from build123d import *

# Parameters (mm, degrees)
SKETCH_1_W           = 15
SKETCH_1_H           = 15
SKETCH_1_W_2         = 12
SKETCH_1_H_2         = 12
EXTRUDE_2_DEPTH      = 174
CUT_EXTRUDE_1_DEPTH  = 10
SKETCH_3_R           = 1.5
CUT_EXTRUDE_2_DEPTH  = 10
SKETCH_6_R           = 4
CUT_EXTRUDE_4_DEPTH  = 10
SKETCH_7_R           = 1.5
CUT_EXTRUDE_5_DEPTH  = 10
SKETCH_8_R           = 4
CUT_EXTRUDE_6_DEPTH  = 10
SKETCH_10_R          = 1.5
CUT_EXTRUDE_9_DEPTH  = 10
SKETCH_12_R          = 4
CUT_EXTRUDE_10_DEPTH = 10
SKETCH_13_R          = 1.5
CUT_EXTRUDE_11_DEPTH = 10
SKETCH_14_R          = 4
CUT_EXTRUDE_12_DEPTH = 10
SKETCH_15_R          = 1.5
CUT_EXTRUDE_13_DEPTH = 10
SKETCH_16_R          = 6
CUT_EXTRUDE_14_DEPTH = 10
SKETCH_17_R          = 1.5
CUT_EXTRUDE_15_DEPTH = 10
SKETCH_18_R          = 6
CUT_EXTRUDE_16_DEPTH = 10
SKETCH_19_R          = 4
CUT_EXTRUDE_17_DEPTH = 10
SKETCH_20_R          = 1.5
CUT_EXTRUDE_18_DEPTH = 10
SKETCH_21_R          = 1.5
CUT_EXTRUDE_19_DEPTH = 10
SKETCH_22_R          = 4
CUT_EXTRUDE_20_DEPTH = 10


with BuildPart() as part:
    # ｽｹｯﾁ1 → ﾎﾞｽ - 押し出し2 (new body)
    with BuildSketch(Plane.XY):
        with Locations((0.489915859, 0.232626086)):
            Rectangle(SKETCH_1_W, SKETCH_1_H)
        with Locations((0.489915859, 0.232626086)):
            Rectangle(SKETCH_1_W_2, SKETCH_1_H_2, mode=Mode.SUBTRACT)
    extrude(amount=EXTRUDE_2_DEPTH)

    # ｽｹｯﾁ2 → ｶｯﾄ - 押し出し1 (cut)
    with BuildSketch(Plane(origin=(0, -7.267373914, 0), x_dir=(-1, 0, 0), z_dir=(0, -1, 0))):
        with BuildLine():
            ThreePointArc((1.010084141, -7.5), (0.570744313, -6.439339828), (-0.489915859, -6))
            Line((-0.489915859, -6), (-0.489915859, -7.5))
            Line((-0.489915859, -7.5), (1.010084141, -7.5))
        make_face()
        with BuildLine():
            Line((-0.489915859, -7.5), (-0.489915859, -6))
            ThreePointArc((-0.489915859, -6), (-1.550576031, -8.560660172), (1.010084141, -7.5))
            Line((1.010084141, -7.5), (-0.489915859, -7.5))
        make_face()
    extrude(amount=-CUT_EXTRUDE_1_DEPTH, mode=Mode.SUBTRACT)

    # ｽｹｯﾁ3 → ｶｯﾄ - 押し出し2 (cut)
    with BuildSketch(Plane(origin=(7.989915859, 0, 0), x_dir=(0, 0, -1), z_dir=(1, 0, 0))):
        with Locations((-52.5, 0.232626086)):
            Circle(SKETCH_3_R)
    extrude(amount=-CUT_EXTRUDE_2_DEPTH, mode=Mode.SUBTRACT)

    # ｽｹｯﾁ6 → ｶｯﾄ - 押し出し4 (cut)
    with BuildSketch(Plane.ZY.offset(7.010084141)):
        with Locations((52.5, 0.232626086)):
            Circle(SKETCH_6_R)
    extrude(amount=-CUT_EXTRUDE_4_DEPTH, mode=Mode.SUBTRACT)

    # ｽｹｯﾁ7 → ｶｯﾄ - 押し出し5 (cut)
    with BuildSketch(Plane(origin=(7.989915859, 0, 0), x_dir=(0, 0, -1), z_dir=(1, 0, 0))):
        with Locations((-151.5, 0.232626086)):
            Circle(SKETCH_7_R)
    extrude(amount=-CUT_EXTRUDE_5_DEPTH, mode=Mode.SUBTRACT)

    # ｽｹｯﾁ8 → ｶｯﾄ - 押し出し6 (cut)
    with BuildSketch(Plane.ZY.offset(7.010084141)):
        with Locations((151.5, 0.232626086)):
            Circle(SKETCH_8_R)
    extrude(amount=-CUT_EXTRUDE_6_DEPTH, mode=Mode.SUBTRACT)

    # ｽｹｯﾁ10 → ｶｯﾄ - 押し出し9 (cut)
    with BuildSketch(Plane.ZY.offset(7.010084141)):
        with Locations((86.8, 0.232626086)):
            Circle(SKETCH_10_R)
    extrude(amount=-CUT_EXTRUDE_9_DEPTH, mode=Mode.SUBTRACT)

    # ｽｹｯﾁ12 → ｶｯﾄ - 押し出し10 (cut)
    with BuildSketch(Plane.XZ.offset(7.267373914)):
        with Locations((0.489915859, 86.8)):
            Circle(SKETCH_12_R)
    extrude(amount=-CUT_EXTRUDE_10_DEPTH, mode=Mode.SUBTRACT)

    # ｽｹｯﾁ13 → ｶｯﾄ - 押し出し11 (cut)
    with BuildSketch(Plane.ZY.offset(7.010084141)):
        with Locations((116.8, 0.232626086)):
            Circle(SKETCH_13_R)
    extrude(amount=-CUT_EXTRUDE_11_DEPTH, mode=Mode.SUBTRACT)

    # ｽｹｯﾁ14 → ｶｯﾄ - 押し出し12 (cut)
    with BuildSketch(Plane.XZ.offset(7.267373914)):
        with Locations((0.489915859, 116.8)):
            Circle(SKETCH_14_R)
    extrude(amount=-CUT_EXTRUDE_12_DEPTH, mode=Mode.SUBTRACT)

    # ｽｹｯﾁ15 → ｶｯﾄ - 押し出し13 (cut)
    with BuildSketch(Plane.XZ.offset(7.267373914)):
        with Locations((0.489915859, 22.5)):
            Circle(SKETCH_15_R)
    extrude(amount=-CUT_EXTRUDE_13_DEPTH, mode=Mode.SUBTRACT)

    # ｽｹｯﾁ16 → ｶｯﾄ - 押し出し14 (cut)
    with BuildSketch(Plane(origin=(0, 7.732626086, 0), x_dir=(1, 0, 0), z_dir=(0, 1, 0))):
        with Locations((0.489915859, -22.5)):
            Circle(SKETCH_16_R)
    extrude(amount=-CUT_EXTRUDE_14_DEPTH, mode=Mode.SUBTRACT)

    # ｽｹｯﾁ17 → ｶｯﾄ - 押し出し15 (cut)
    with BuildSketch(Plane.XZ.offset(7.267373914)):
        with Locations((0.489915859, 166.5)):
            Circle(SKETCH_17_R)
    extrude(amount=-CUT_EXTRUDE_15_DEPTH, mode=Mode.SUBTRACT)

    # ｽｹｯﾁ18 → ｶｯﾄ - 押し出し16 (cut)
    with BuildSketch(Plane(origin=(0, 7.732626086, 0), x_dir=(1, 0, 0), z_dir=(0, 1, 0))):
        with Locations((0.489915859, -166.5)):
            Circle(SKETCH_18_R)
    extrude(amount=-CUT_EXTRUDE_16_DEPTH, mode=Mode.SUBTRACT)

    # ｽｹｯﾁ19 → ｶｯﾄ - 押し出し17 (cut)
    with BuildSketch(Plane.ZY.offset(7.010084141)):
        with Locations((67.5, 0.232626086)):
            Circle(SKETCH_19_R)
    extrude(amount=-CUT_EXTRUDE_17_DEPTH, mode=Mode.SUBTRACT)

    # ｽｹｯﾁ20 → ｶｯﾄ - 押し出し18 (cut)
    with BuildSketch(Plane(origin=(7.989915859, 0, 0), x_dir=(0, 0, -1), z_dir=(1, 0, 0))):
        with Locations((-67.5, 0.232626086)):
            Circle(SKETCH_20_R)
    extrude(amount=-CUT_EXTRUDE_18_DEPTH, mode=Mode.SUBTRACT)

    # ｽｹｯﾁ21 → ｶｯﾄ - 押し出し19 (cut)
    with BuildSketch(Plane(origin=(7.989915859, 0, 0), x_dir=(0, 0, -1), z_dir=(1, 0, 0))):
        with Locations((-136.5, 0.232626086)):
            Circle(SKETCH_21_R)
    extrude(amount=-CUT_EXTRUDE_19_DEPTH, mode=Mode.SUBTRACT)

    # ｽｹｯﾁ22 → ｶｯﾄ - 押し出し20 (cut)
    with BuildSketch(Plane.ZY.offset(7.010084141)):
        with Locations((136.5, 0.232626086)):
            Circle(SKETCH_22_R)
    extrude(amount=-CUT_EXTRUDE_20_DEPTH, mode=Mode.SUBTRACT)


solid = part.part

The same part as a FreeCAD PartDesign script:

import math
import FreeCAD as App
import Part
import Sketcher
from FreeCAD import Vector


def add_polygon(sketch, points):
    """Adds a closed chain of lines whose ends are joined by coincident constraints."""
    first, n = sketch.GeometryCount, len(points)
    for a, b in zip(points, points[1:] + points[:1]):
        sketch.addGeometry(Part.LineSegment(App.Vector(*a, 0), App.Vector(*b, 0)), False)
    for i in range(n):
        sketch.addConstraint(Sketcher.Constraint("Coincident", first + i, 2, first + (i + 1) % n, 1))

doc = App.newDocument("Part")
body = doc.addObject("PartDesign::Body", "Body")

sketch1 = doc.addObject("Sketcher::SketchObject", "Sketch")
body.addObject(sketch1)
sketch1.AttachmentSupport = (doc.XY_Plane, [""])
sketch1.MapMode = "FlatFace"
add_polygon(sketch1, [(-7.010084, 7.732626), (-7.010084, -7.267374), (7.989916, -7.267374), (7.989916, 7.732626)])
add_polygon(sketch1, [(6.489916, -5.767374), (-5.510084, -5.767374), (-5.510084, 6.232626), (6.489916, 6.232626)])
sketch1.addConstraint([
    Sketcher.Constraint("Vertical", 0),
    Sketcher.Constraint("Horizontal", 1),
    Sketcher.Constraint("Vertical", 2),
    Sketcher.Constraint("Horizontal", 3),
    Sketcher.Constraint("Horizontal", 4),
    Sketcher.Constraint("Vertical", 5),
    Sketcher.Constraint("Horizontal", 6),
    Sketcher.Constraint("Vertical", 7),
    Sketcher.Constraint("Equal", 3, 0),
    Sketcher.Constraint("Equal", 6, 5),
    Sketcher.Constraint("DistanceX", 1, 1, 1, 2, 15.0),
    Sketcher.Constraint("DistanceX", 4, 2, 4, 1, 12.0),
    Sketcher.Constraint("DistanceX", 0, 2, 4, 2, 1.5),
    Sketcher.Constraint("DistanceY", 0, 2, 4, 2, 1.5),
    Sketcher.Constraint("DistanceX", 0, 2, -1, 1, 7.010084),
    Sketcher.Constraint("DistanceY", 0, 2, -1, 1, 7.267374),
])
pad1 = doc.addObject("PartDesign::Pad", "Pad")
body.addObject(pad1)
pad1.Profile = sketch1
pad1.Length = 174

sketch2 = doc.addObject("Sketcher::SketchObject", "Sketch001")
body.addObject(sketch2)
sketch2.AttachmentSupport = (doc.XZ_Plane, [""])
sketch2.MapMode = "FlatFace"
sketch2.AttachmentOffset = App.Placement(Vector(0, 0, 7.267374), App.Rotation())
sketch2.addGeometry([
    Part.ArcOfCircle(Part.Circle(Vector(0.489916, 7.5, 0), Vector(0, 0, 1), 1.5), math.radians(180), math.radians(270)),
    Part.ArcOfCircle(Part.Circle(Vector(0.489916, 7.5, 0), Vector(0, 0, 1), 1.5), math.radians(-90), math.radians(180)),
], False)
sketch2.addConstraint([
    Sketcher.Constraint("Tangent", 0, 1, 1, 2),
    Sketcher.Constraint("Coincident", 1, 1, 0, 2),
    Sketcher.Constraint("Horizontal", 1, 3, 0, 1),
    Sketcher.Constraint("Vertical", 0, 3, 1, 1),
    Sketcher.Constraint("Radius", 0, 1.5),
    Sketcher.Constraint("DistanceY", -1, 1, 1, 1, 6.0),
    Sketcher.Constraint("DistanceX", -1, 1, 0, 3, 0.489916),
])
pocket1 = doc.addObject("PartDesign::Pocket", "Pocket")
body.addObject(pocket1)
pocket1.Profile = sketch2
pocket1.Length = 10

sketch3 = doc.addObject("Sketcher::SketchObject", "Sketch002")
body.addObject(sketch3)
sketch3.AttachmentSupport = (doc.YZ_Plane, [""])
sketch3.MapMode = "FlatFace"
sketch3.AttachmentOffset = App.Placement(Vector(0, 0, 7.989916), App.Rotation())
sketch3.addGeometry(Part.Circle(Vector(0.232626, 52.5, 0), Vector(0, 0, 1), 1.5), False)
sketch3.addConstraint([
    Sketcher.Constraint("Diameter", 0, 3.0),
    Sketcher.Constraint("DistanceY", -1, 1, 0, 3, 52.5),
    Sketcher.Constraint("DistanceX", -1, 1, 0, 3, 0.232626),
])
pocket2 = doc.addObject("PartDesign::Pocket", "Pocket001")
body.addObject(pocket2)
pocket2.Profile = sketch3
pocket2.Length = 10

sketch4 = doc.addObject("Sketcher::SketchObject", "Sketch003")
body.addObject(sketch4)
sketch4.AttachmentSupport = (doc.YZ_Plane, [""])
sketch4.MapMode = "FlatFace"
sketch4.AttachmentOffset = App.Placement(Vector(0, 0, -7.010084), App.Rotation())
sketch4.addGeometry(Part.Circle(Vector(0.232626, 52.5, 0), Vector(0, 0, 1), 4), False)
sketch4.addConstraint([
    Sketcher.Constraint("Diameter", 0, 8.0),
    Sketcher.Constraint("DistanceY", -1, 1, 0, 3, 52.5),
    Sketcher.Constraint("DistanceX", -1, 1, 0, 3, 0.232626),
])
pocket3 = doc.addObject("PartDesign::Pocket", "Pocket002")
body.addObject(pocket3)
pocket3.Profile = sketch4
pocket3.Length = 10
pocket3.Reversed = True

sketch5 = doc.addObject("Sketcher::SketchObject", "Sketch004")
body.addObject(sketch5)
sketch5.AttachmentSupport = (doc.YZ_Plane, [""])
sketch5.MapMode = "FlatFace"
sketch5.AttachmentOffset = App.Placement(Vector(0, 0, 7.989916), App.Rotation())
sketch5.addGeometry(Part.Circle(Vector(0.232626, 151.5, 0), Vector(0, 0, 1), 1.5), False)
sketch5.addConstraint([
    Sketcher.Constraint("Diameter", 0, 3.0),
    Sketcher.Constraint("DistanceY", -1, 1, 0, 3, 151.5),
    Sketcher.Constraint("DistanceX", -1, 1, 0, 3, 0.232626),
])
pocket4 = doc.addObject("PartDesign::Pocket", "Pocket003")
body.addObject(pocket4)
pocket4.Profile = sketch5
pocket4.Length = 10

sketch6 = doc.addObject("Sketcher::SketchObject", "Sketch005")
body.addObject(sketch6)
sketch6.AttachmentSupport = (doc.YZ_Plane, [""])
sketch6.MapMode = "FlatFace"
sketch6.AttachmentOffset = App.Placement(Vector(0, 0, -7.010084), App.Rotation())
sketch6.addGeometry(Part.Circle(Vector(0.232626, 151.5, 0), Vector(0, 0, 1), 4), False)
sketch6.addConstraint([
    Sketcher.Constraint("Diameter", 0, 8.0),
    Sketcher.Constraint("DistanceY", -1, 1, 0, 3, 151.5),
    Sketcher.Constraint("DistanceX", -1, 1, 0, 3, 0.232626),
])
pocket5 = doc.addObject("PartDesign::Pocket", "Pocket004")
body.addObject(pocket5)
pocket5.Profile = sketch6
pocket5.Length = 10
pocket5.Reversed = True

sketch7 = doc.addObject("Sketcher::SketchObject", "Sketch006")
body.addObject(sketch7)
sketch7.AttachmentSupport = (doc.YZ_Plane, [""])
sketch7.MapMode = "FlatFace"
sketch7.AttachmentOffset = App.Placement(Vector(0, 0, -7.010084), App.Rotation())
sketch7.addGeometry(Part.Circle(Vector(0.232626, 86.8, 0), Vector(0, 0, 1), 1.5), False)
sketch7.addConstraint([
    Sketcher.Constraint("Diameter", 0, 3.0),
    Sketcher.Constraint("DistanceY", -1, 1, 0, 3, 86.8),
    Sketcher.Constraint("DistanceX", -1, 1, 0, 3, 0.232626),
])
pocket6 = doc.addObject("PartDesign::Pocket", "Pocket005")
body.addObject(pocket6)
pocket6.Profile = sketch7
pocket6.Length = 10
pocket6.Reversed = True

sketch8 = doc.addObject("Sketcher::SketchObject", "Sketch007")
body.addObject(sketch8)
sketch8.AttachmentSupport = (doc.XZ_Plane, [""])
sketch8.MapMode = "FlatFace"
sketch8.AttachmentOffset = App.Placement(Vector(0, 0, 7.267374), App.Rotation())
sketch8.addGeometry(Part.Circle(Vector(0.489916, 86.8, 0), Vector(0, 0, 1), 4), False)
sketch8.addConstraint([
    Sketcher.Constraint("Diameter", 0, 8.0),
    Sketcher.Constraint("DistanceY", -1, 1, 0, 3, 86.8),
    Sketcher.Constraint("DistanceX", -1, 1, 0, 3, 0.489916),
])
pocket7 = doc.addObject("PartDesign::Pocket", "Pocket006")
body.addObject(pocket7)
pocket7.Profile = sketch8
pocket7.Length = 10

sketch9 = doc.addObject("Sketcher::SketchObject", "Sketch008")
body.addObject(sketch9)
sketch9.AttachmentSupport = (doc.YZ_Plane, [""])
sketch9.MapMode = "FlatFace"
sketch9.AttachmentOffset = App.Placement(Vector(0, 0, -7.010084), App.Rotation())
sketch9.addGeometry(Part.Circle(Vector(0.232626, 116.8, 0), Vector(0, 0, 1), 1.5), False)
sketch9.addConstraint([
    Sketcher.Constraint("Diameter", 0, 3.0),
    Sketcher.Constraint("DistanceY", -1, 1, 0, 3, 116.8),
    Sketcher.Constraint("DistanceX", -1, 1, 0, 3, 0.232626),
])
pocket8 = doc.addObject("PartDesign::Pocket", "Pocket007")
body.addObject(pocket8)
pocket8.Profile = sketch9
pocket8.Length = 10
pocket8.Reversed = True

sketch10 = doc.addObject("Sketcher::SketchObject", "Sketch009")
body.addObject(sketch10)
sketch10.AttachmentSupport = (doc.XZ_Plane, [""])
sketch10.MapMode = "FlatFace"
sketch10.AttachmentOffset = App.Placement(Vector(0, 0, 7.267374), App.Rotation())
sketch10.addGeometry(Part.Circle(Vector(0.489916, 116.8, 0), Vector(0, 0, 1), 4), False)
sketch10.addConstraint([
    Sketcher.Constraint("Diameter", 0, 8.0),
    Sketcher.Constraint("DistanceY", -1, 1, 0, 3, 116.8),
    Sketcher.Constraint("DistanceX", -1, 1, 0, 3, 0.489916),
])
pocket9 = doc.addObject("PartDesign::Pocket", "Pocket008")
body.addObject(pocket9)
pocket9.Profile = sketch10
pocket9.Length = 10

sketch11 = doc.addObject("Sketcher::SketchObject", "Sketch010")
body.addObject(sketch11)
sketch11.AttachmentSupport = (doc.XZ_Plane, [""])
sketch11.MapMode = "FlatFace"
sketch11.AttachmentOffset = App.Placement(Vector(0, 0, 7.267374), App.Rotation())
sketch11.addGeometry(Part.Circle(Vector(0.489916, 22.5, 0), Vector(0, 0, 1), 1.5), False)
sketch11.addConstraint([
    Sketcher.Constraint("Diameter", 0, 3.0),
    Sketcher.Constraint("DistanceY", -1, 1, 0, 3, 22.5),
    Sketcher.Constraint("DistanceX", -1, 1, 0, 3, 0.489916),
])
pocket10 = doc.addObject("PartDesign::Pocket", "Pocket009")
body.addObject(pocket10)
pocket10.Profile = sketch11
pocket10.Length = 10

sketch12 = doc.addObject("Sketcher::SketchObject", "Sketch011")
body.addObject(sketch12)
sketch12.AttachmentSupport = (doc.XZ_Plane, [""])
sketch12.MapMode = "FlatFace"
sketch12.AttachmentOffset = App.Placement(Vector(0, 0, -7.732626), App.Rotation())
sketch12.addGeometry(Part.Circle(Vector(0.489916, 22.5, 0), Vector(0, 0, 1), 6), False)
sketch12.addConstraint([
    Sketcher.Constraint("Diameter", 0, 12.0),
    Sketcher.Constraint("DistanceY", -1, 1, 0, 3, 22.5),
    Sketcher.Constraint("DistanceX", -1, 1, 0, 3, 0.489916),
])
pocket11 = doc.addObject("PartDesign::Pocket", "Pocket010")
body.addObject(pocket11)
pocket11.Profile = sketch12
pocket11.Length = 10
pocket11.Reversed = True

sketch13 = doc.addObject("Sketcher::SketchObject", "Sketch012")
body.addObject(sketch13)
sketch13.AttachmentSupport = (doc.XZ_Plane, [""])
sketch13.MapMode = "FlatFace"
sketch13.AttachmentOffset = App.Placement(Vector(0, 0, 7.267374), App.Rotation())
sketch13.addGeometry(Part.Circle(Vector(0.489916, 166.5, 0), Vector(0, 0, 1), 1.5), False)
sketch13.addConstraint([
    Sketcher.Constraint("Diameter", 0, 3.0),
    Sketcher.Constraint("DistanceY", -1, 1, 0, 3, 166.5),
    Sketcher.Constraint("DistanceX", -1, 1, 0, 3, 0.489916),
])
pocket12 = doc.addObject("PartDesign::Pocket", "Pocket011")
body.addObject(pocket12)
pocket12.Profile = sketch13
pocket12.Length = 10

sketch14 = doc.addObject("Sketcher::SketchObject", "Sketch013")
body.addObject(sketch14)
sketch14.AttachmentSupport = (doc.XZ_Plane, [""])
sketch14.MapMode = "FlatFace"
sketch14.AttachmentOffset = App.Placement(Vector(0, 0, -7.732626), App.Rotation())
sketch14.addGeometry(Part.Circle(Vector(0.489916, 166.5, 0), Vector(0, 0, 1), 6), False)
sketch14.addConstraint([
    Sketcher.Constraint("Diameter", 0, 12.0),
    Sketcher.Constraint("DistanceY", -1, 1, 0, 3, 166.5),
    Sketcher.Constraint("DistanceX", -1, 1, 0, 3, 0.489916),
])
pocket13 = doc.addObject("PartDesign::Pocket", "Pocket012")
body.addObject(pocket13)
pocket13.Profile = sketch14
pocket13.Length = 10
pocket13.Reversed = True

sketch15 = doc.addObject("Sketcher::SketchObject", "Sketch014")
body.addObject(sketch15)
sketch15.AttachmentSupport = (doc.YZ_Plane, [""])
sketch15.MapMode = "FlatFace"
sketch15.AttachmentOffset = App.Placement(Vector(0, 0, -7.010084), App.Rotation())
sketch15.addGeometry(Part.Circle(Vector(0.232626, 67.5, 0), Vector(0, 0, 1), 4), False)
sketch15.addConstraint([
    Sketcher.Constraint("Diameter", 0, 8.0),
    Sketcher.Constraint("DistanceY", -1, 1, 0, 3, 67.5),
    Sketcher.Constraint("DistanceX", -1, 1, 0, 3, 0.232626),
])
pocket14 = doc.addObject("PartDesign::Pocket", "Pocket013")
body.addObject(pocket14)
pocket14.Profile = sketch15
pocket14.Length = 10
pocket14.Reversed = True

sketch16 = doc.addObject("Sketcher::SketchObject", "Sketch015")
body.addObject(sketch16)
sketch16.AttachmentSupport = (doc.YZ_Plane, [""])
sketch16.MapMode = "FlatFace"
sketch16.AttachmentOffset = App.Placement(Vector(0, 0, 7.989916), App.Rotation())
sketch16.addGeometry(Part.Circle(Vector(0.232626, 67.5, 0), Vector(0, 0, 1), 1.5), False)
sketch16.addConstraint([
    Sketcher.Constraint("Diameter", 0, 3.0),
    Sketcher.Constraint("DistanceY", -1, 1, 0, 3, 67.5),
    Sketcher.Constraint("DistanceX", -1, 1, 0, 3, 0.232626),
])
pocket15 = doc.addObject("PartDesign::Pocket", "Pocket014")
body.addObject(pocket15)
pocket15.Profile = sketch16
pocket15.Length = 10

sketch17 = doc.addObject("Sketcher::SketchObject", "Sketch016")
body.addObject(sketch17)
sketch17.AttachmentSupport = (doc.YZ_Plane, [""])
sketch17.MapMode = "FlatFace"
sketch17.AttachmentOffset = App.Placement(Vector(0, 0, 7.989916), App.Rotation())
sketch17.addGeometry(Part.Circle(Vector(0.232626, 136.5, 0), Vector(0, 0, 1), 1.5), False)
sketch17.addConstraint([
    Sketcher.Constraint("Diameter", 0, 3.0),
    Sketcher.Constraint("DistanceY", -1, 1, 0, 3, 136.5),
    Sketcher.Constraint("DistanceX", -1, 1, 0, 3, 0.232626),
])
pocket16 = doc.addObject("PartDesign::Pocket", "Pocket015")
body.addObject(pocket16)
pocket16.Profile = sketch17
pocket16.Length = 10

sketch18 = doc.addObject("Sketcher::SketchObject", "Sketch017")
body.addObject(sketch18)
sketch18.AttachmentSupport = (doc.YZ_Plane, [""])
sketch18.MapMode = "FlatFace"
sketch18.AttachmentOffset = App.Placement(Vector(0, 0, -7.010084), App.Rotation())
sketch18.addGeometry(Part.Circle(Vector(0.232626, 136.5, 0), Vector(0, 0, 1), 4), False)
sketch18.addConstraint([
    Sketcher.Constraint("Diameter", 0, 8.0),
    Sketcher.Constraint("DistanceY", -1, 1, 0, 3, 136.5),
    Sketcher.Constraint("DistanceX", -1, 1, 0, 3, 0.232626),
])
pocket17 = doc.addObject("PartDesign::Pocket", "Pocket016")
body.addObject(pocket17)
pocket17.Profile = sketch18
pocket17.Length = 10
pocket17.Reversed = True

doc.recompute()
